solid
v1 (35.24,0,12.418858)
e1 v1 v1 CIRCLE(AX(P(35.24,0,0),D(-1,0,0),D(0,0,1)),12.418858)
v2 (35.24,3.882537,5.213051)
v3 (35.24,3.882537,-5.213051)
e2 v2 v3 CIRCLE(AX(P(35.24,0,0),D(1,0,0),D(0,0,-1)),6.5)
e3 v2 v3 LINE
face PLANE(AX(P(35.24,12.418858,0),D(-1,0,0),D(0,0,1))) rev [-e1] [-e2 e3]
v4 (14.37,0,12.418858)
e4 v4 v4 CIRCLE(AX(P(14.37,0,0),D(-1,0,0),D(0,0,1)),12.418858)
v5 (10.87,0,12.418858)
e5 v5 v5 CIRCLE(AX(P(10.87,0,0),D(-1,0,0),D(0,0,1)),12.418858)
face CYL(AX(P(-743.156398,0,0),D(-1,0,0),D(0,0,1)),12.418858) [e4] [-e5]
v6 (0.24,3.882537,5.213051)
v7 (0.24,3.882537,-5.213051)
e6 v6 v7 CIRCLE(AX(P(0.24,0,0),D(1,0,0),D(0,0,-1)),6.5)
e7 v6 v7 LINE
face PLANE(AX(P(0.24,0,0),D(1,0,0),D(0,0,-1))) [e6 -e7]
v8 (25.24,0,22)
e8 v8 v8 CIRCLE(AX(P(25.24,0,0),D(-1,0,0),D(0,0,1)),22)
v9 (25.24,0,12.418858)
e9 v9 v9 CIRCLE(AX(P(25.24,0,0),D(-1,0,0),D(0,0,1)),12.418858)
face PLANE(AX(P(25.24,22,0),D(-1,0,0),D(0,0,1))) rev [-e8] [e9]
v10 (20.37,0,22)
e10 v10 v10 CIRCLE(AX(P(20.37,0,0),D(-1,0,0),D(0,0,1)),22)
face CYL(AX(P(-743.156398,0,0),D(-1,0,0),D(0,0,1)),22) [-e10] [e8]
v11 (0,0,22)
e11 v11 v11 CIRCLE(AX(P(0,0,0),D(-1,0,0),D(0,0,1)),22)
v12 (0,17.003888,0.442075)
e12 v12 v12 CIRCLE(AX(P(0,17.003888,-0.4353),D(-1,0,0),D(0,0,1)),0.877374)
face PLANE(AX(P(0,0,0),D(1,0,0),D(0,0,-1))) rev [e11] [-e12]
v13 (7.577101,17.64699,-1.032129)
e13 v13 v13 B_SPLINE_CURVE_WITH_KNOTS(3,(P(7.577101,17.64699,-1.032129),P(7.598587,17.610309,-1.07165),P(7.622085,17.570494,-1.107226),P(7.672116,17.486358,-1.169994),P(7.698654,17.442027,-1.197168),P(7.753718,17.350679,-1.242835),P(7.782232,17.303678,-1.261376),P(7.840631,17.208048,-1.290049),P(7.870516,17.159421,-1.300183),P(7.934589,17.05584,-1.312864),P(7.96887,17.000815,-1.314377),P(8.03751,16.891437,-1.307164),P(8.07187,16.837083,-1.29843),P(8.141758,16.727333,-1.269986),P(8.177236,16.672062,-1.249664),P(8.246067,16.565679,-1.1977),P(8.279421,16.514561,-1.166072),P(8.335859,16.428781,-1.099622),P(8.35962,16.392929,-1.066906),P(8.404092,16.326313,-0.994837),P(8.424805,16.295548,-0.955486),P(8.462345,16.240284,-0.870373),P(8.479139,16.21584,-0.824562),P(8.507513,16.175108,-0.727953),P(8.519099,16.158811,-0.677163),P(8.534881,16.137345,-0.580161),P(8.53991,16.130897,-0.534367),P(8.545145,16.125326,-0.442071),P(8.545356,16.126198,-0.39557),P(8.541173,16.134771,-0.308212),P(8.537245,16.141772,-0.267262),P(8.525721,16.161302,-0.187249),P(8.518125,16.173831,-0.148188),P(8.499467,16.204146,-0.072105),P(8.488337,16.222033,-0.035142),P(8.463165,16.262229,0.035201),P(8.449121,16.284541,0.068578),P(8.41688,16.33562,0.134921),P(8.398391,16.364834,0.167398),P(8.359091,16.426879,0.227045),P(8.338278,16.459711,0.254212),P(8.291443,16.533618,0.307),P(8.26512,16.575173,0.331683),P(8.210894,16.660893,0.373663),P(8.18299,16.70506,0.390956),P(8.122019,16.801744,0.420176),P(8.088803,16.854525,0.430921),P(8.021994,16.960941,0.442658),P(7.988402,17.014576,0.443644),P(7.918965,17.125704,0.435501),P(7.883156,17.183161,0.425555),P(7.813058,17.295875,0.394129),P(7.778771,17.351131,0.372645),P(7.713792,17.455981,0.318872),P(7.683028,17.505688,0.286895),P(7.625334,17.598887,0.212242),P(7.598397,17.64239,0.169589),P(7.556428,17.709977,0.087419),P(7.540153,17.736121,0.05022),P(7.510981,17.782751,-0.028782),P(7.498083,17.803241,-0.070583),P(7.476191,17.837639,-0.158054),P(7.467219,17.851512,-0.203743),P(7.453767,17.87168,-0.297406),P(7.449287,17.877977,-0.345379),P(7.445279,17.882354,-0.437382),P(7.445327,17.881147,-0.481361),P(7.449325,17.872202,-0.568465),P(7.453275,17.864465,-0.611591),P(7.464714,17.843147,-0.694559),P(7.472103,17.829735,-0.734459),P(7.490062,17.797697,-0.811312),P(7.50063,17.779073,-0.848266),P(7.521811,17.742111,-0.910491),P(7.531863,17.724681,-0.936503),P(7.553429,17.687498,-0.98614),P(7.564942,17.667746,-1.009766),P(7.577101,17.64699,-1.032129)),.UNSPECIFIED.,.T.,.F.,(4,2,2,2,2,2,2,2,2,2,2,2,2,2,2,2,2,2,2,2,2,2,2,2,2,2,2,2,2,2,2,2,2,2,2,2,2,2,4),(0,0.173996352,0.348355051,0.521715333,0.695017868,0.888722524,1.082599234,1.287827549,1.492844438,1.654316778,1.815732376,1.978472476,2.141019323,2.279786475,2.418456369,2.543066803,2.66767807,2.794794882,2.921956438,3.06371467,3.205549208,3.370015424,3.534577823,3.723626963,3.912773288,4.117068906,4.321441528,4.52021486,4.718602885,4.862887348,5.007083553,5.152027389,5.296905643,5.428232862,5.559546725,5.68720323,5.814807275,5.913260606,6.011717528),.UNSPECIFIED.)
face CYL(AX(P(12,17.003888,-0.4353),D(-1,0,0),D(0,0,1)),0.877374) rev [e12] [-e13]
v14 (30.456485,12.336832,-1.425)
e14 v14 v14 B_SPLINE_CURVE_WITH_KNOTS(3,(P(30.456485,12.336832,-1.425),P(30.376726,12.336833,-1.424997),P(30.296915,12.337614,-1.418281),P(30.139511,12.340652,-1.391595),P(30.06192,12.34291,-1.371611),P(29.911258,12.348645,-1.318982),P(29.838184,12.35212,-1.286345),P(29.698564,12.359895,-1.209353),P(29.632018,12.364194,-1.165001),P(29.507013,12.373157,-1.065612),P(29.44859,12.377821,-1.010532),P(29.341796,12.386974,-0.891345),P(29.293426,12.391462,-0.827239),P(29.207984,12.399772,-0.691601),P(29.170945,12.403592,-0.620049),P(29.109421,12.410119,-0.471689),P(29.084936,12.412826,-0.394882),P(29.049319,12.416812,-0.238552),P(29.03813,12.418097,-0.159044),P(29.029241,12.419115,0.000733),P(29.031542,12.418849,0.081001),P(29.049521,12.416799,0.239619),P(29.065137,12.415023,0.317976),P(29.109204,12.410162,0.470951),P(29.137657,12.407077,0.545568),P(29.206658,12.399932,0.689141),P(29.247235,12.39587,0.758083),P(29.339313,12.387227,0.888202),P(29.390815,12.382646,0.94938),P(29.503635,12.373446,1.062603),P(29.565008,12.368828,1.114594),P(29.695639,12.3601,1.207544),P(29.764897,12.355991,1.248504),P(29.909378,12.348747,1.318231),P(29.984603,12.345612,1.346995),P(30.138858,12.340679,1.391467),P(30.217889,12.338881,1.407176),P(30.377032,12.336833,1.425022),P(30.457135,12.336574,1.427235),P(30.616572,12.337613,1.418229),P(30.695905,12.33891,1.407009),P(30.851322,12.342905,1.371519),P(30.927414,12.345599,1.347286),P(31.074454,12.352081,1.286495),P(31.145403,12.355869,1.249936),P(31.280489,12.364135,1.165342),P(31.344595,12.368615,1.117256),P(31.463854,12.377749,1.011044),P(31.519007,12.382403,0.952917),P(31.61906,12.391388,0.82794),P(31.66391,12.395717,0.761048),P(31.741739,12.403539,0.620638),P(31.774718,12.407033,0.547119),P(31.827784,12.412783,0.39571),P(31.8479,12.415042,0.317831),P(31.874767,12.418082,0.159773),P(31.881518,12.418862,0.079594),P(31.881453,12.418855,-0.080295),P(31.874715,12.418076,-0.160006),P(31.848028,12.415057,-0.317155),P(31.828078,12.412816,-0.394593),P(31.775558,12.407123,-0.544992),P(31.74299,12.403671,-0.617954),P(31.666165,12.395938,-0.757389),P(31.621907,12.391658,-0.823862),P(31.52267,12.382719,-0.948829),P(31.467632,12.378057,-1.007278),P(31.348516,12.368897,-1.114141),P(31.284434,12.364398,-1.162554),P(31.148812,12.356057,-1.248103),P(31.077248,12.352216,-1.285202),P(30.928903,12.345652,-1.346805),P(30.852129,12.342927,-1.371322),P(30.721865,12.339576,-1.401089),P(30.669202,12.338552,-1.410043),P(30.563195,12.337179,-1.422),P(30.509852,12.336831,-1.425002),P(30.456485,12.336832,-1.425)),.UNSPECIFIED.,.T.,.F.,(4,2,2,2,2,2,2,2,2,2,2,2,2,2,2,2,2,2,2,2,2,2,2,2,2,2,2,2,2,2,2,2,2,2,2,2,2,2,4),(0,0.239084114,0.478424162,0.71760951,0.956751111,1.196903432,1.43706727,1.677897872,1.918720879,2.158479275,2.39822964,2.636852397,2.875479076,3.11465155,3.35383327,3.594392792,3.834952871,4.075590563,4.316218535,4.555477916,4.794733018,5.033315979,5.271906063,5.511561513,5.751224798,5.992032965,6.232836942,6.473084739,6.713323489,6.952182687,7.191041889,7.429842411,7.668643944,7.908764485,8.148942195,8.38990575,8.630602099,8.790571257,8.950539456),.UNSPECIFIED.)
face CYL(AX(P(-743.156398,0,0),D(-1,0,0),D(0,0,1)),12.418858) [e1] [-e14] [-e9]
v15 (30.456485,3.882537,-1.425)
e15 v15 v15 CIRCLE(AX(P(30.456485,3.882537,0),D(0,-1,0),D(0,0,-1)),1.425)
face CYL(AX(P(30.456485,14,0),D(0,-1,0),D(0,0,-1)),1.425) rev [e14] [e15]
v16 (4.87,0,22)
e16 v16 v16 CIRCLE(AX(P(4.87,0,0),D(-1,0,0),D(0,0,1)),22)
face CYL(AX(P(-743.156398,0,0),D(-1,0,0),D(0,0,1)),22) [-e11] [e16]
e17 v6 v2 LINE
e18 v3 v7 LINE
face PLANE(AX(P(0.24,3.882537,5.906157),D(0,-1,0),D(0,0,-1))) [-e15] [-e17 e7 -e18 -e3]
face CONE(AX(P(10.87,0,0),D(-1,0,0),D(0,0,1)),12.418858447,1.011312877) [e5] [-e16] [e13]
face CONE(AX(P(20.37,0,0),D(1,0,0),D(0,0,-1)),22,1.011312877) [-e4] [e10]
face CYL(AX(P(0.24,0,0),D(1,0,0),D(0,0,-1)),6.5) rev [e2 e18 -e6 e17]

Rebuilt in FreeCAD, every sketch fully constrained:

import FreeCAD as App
import Part
import Sketcher
from FreeCAD import Vector

doc = App.newDocument("Part")
body = doc.addObject("PartDesign::Body", "Body")

# Sketch on XY plane
sketch1 = body.newObject("Sketcher::SketchObject", "Sketch")
sketch1.AttachmentSupport = (doc.getObject("XY_Plane"), [""])
sketch1.MapMode = "FlatFace"
sketch1.addGeometry(Part.LineSegment(Vector(0, 22, 0), Vector(0, 0, 0)), False)
sketch1.addGeometry(Part.LineSegment(Vector(0, 0, 0), Vector(35.2, 0, 0)), False)
sketch1.addGeometry(Part.LineSegment(Vector(35.2, 0, 0), Vector(35.2, 12.4, 0)), False)
sketch1.addGeometry(Part.LineSegment(Vector(35.2, 12.4, 0), Vector(25.2, 12.4, 0)), False)
sketch1.addGeometry(Part.LineSegment(Vector(25.2, 12.4, 0), Vector(25.2, 22, 0)), False)
sketch1.addGeometry(Part.LineSegment(Vector(25.2, 22, 0), Vector(20.4, 22, 0)), False)
sketch1.addGeometry(Part.LineSegment(Vector(20.4, 22, 0), Vector(14.4, 12.4, 0)), False)
sketch1.addGeometry(Part.LineSegment(Vector(14.4, 12.4, 0), Vector(10.9, 12.4, 0)), False)
sketch1.addGeometry(Part.LineSegment(Vector(10.9, 12.4, 0), Vector(4.9, 22, 0)), False)
sketch1.addGeometry(Part.LineSegment(Vector(4.9, 22, 0), Vector(0, 22, 0)), False)
sketch1.addConstraint(Sketcher.Constraint("Coincident", 0, 2, 1, 1))
sketch1.addConstraint(Sketcher.Constraint("Coincident", 1, 2, 2, 1))
sketch1.addConstraint(Sketcher.Constraint("Coincident", 2, 2, 3, 1))
sketch1.addConstraint(Sketcher.Constraint("Coincident", 3, 2, 4, 1))
sketch1.addConstraint(Sketcher.Constraint("Coincident", 4, 2, 5, 1))
sketch1.addConstraint(Sketcher.Constraint("Coincident", 5, 2, 6, 1))
sketch1.addConstraint(Sketcher.Constraint("Coincident", 6, 2, 7, 1))
sketch1.addConstraint(Sketcher.Constraint("Coincident", 7, 2, 8, 1))
sketch1.addConstraint(Sketcher.Constraint("Coincident", 8, 2, 9, 1))
sketch1.addConstraint(Sketcher.Constraint("Coincident", 9, 2, 0, 1))
sketch1.addConstraint(Sketcher.Constraint("Vertical", 0))
sketch1.addConstraint(Sketcher.Constraint("Horizontal", 1))
sketch1.addConstraint(Sketcher.Constraint("Vertical", 2))
sketch1.addConstraint(Sketcher.Constraint("Horizontal", 3))
sketch1.addConstraint(Sketcher.Constraint("Vertical", 4))
sketch1.addConstraint(Sketcher.Constraint("Horizontal", 5))
sketch1.addConstraint(Sketcher.Constraint("Horizontal", 7))
sketch1.addConstraint(Sketcher.Constraint("Horizontal", 9))
sketch1.addConstraint(Sketcher.Constraint("Coincident", 0, 2, -1, 1))
sketch1.addConstraint(Sketcher.Constraint("Horizontal", 3, 2, 6, 2))
sketch1.addConstraint(Sketcher.Constraint("Horizontal", 5, 2, 8, 2))
sketch1.addConstraint(Sketcher.Constraint("Equal", 5, 9))
sketch1.addConstraint(Sketcher.Constraint("Equal", 6, 8))
sketch1.addConstraint(Sketcher.Constraint("DistanceX", 3, 2, 3, 1, 10.0))
sketch1.addConstraint(Sketcher.Constraint("DistanceY", 0, 2, 0, 1, 22.0))
sketch1.addConstraint(Sketcher.Constraint("DistanceX", 7, 2, 7, 1, 3.5))
sketch1.addConstraint(Sketcher.Constraint("DistanceX", 6, 2, 5, 2, 6.0))
sketch1.addConstraint(Sketcher.Constraint("DistanceX", 1, 1, 1, 2, 35.24))
sketch1.addConstraint(Sketcher.Constraint("DistanceY", 2, 1, 2, 2, 12.418858))
revolution = body.newObject("PartDesign::Revolution", "Revolution")
revolution.Profile = sketch1
revolution.ReferenceAxis = (sketch1, ["H_Axis"])
revolution.Angle = 360

# Sketch on XZ plane
sketch2 = body.newObject("Sketcher::SketchObject", "Sketch001")
sketch2.AttachmentSupport = (doc.getObject("XZ_Plane"), [""])
sketch2.MapMode = "FlatFace"
sketch2.AttachmentOffset = App.Placement(Vector(0, 0, -12), App.Rotation())
sketch2.addGeometry(Part.Circle(Vector(30.5, 0, 0), Vector(0, 0, 1), 1.4), False)
sketch2.addConstraint(Sketcher.Constraint("PointOnObject", 0, 3, -1))
sketch2.addConstraint(Sketcher.Constraint("Diameter", 0, 2.77))
sketch2.addConstraint(Sketcher.Constraint("DistanceX", -1, 1, 0, 3, 30.456485))
pocket1 = body.newObject("PartDesign::Pocket", "Pocket")
pocket1.Profile = sketch2
pocket1.Length = 10
pocket1.Reversed = True

# Sketch on YZ plane
sketch3 = body.newObject("Sketcher::SketchObject", "Sketch002")
sketch3.AttachmentSupport = (doc.getObject("YZ_Plane"), [""])
sketch3.MapMode = "FlatFace"
sketch3.AttachmentOffset = App.Placement(Vector(0, 0, 35.24), App.Rotation())
sketch3.addGeometry(Part.Circle(Vector(0, 0, 0), Vector(0, 0, 1), 6), False)
sketch3.addConstraint(Sketcher.Constraint("Coincident", 0, 3, -1, 1))
sketch3.addConstraint(Sketcher.Constraint("Diameter", 0, 13.0))
pocket2 = body.newObject("PartDesign::Pocket", "Pocket001")
pocket2.Profile = sketch3
pocket2.Length = 35

# Sketch on XZ plane
sketch4 = body.newObject("Sketcher::SketchObject", "Sketch003")
sketch4.AttachmentSupport = (doc.getObject("XZ_Plane"), [""])
sketch4.MapMode = "FlatFace"
sketch4.AttachmentOffset = App.Placement(Vector(0, 0, -12), App.Rotation())
sketch4.addGeometry(Part.Circle(Vector(30.5, 0, 0), Vector(0, 0, 1), 1.4), False)
sketch4.addConstraint(Sketcher.Constraint("PointOnObject", 0, 3, -1))
sketch4.addConstraint(Sketcher.Constraint("Diameter", 0, 2.85))
sketch4.addConstraint(Sketcher.Constraint("DistanceX", -1, 1, 0, 3, 30.456485))
pocket3 = body.newObject("PartDesign::Pocket", "Pocket002")
pocket3.Profile = sketch4
pocket3.Type = "TwoLengths"
pocket3.Length = 2
pocket3.Length2 = 10

# Sketch on YZ plane
sketch5 = body.newObject("Sketcher::SketchObject", "Sketch004")
sketch5.AttachmentSupport = (doc.getObject("YZ_Plane"), [""])
sketch5.MapMode = "FlatFace"
sketch5.AttachmentOffset = App.Placement(Vector(0, 0, 35.24), App.Rotation())
sketch5.addGeometry(Part.LineSegment(Vector(7.3, 5.9, 0), Vector(3.9, 5.9, 0)), False)
sketch5.addGeometry(Part.LineSegment(Vector(3.9, 5.9, 0), Vector(3.9, -5.5, 0)), False)
sketch5.addGeometry(Part.LineSegment(Vector(3.9, -5.5, 0), Vector(7.3, -5.5, 0)), False)
sketch5.addGeometry(Part.LineSegment(Vector(7.3, -5.5, 0), Vector(7.3, 5.9, 0)), False)
sketch5.addConstraint(Sketcher.Constraint("Coincident", 0, 2, 1, 1))
sketch5.addConstraint(Sketcher.Constraint("Coincident", 1, 2, 2, 1))
sketch5.addConstraint(Sketcher.Constraint("Coincident", 2, 2, 3, 1))
sketch5.addConstraint(Sketcher.Constraint("Coincident", 3, 2, 0, 1))
sketch5.addConstraint(Sketcher.Constraint("Horizontal", 0))
sketch5.addConstraint(Sketcher.Constraint("Vertical", 1))
sketch5.addConstraint(Sketcher.Constraint("Horizontal", 2))
sketch5.addConstraint(Sketcher.Constraint("Vertical", 3))
sketch5.addConstraint(Sketcher.Constraint("DistanceX", 0, 2, 0, 1, 3.4))
sketch5.addConstraint(Sketcher.Constraint("DistanceY", 1, 2, 1, 1, 11.431167))
sketch5.addConstraint(Sketcher.Constraint("DistanceY", 1, 2, -1, 1, 5.525011))
sketch5.addConstraint(Sketcher.Constraint("DistanceX", -1, 1, 0, 2, 3.882537))
pad1 = body.newObject("PartDesign::Pad", "Pad")
pad1.Profile = sketch5
pad1.Length = 35
pad1.Reversed = True

# Sketch on XZ plane
sketch6 = body.newObject("Sketcher::SketchObject", "Sketch005")
sketch6.AttachmentSupport = (doc.getObject("XZ_Plane"), [""])
sketch6.MapMode = "FlatFace"
sketch6.AttachmentOffset = App.Placement(Vector(0, 0, -12), App.Rotation())
sketch6.addGeometry(Part.Circle(Vector(30.5, 0, 0), Vector(0, 0, 1), 1.4), False)
sketch6.addConstraint(Sketcher.Constraint("PointOnObject", 0, 3, -1))
sketch6.addConstraint(Sketcher.Constraint("Diameter", 0, 2.85))
sketch6.addConstraint(Sketcher.Constraint("DistanceX", -1, 1, 0, 3, 30.456485))
pocket4 = body.newObject("PartDesign::Pocket", "Pocket003")
pocket4.Profile = sketch6
pocket4.Length = 16
pocket4.Reversed = True

# Sketch on YZ plane
sketch7 = body.newObject("Sketcher::SketchObject", "Sketch006")
sketch7.AttachmentSupport = (doc.getObject("YZ_Plane"), [""])
sketch7.MapMode = "FlatFace"
sketch7.addGeometry(Part.Circle(Vector(17, -0.4, 0), Vector(0, 0, 1), 0.9), False)
sketch7.addConstraint(Sketcher.Constraint("Diameter", 0, 1.754749))
sketch7.addConstraint(Sketcher.Constraint("DistanceY", 0, 3, -1, 1, 0.4353))
sketch7.addConstraint(Sketcher.Constraint("DistanceX", -1, 1, 0, 3, 17.003888))
pocket5 = body.newObject("PartDesign::Pocket", "Pocket004")
pocket5.Profile = sketch7
pocket5.Length = 12
pocket5.Reversed = True

doc.recompute()
